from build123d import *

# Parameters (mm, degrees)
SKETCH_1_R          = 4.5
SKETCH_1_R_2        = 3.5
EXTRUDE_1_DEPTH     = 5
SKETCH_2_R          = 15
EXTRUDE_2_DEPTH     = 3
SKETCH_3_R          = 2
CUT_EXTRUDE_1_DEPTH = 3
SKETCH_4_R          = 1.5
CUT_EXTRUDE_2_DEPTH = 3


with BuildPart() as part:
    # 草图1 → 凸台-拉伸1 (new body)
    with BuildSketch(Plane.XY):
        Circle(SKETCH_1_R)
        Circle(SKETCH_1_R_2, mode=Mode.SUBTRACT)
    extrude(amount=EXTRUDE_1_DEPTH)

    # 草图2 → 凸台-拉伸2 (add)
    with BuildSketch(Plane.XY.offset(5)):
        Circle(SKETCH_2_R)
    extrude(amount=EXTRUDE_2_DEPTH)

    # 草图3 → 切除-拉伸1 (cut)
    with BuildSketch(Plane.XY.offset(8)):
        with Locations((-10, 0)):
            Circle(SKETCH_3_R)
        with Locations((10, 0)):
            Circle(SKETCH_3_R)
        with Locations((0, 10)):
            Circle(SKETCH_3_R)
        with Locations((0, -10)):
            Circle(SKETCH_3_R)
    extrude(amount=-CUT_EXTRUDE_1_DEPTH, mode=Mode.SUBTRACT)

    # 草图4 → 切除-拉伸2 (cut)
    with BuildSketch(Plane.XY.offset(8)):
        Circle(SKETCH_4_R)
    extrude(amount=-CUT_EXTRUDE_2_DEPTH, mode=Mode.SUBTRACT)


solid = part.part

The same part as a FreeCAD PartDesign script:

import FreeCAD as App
import Part
import Sketcher
Q = App.Units.Quantity

doc = App.newDocument("Part")
params = doc.addObject("Spreadsheet::Sheet", "Params")
for row, (alias, value) in enumerate([
    ("sketch1_diameter", "9 mm"),
    ("sketch1_diameter2", "7 mm"),
    ("pad1_length", "5 mm"),
    ("sketch2_diameter", "30 mm"),
    ("pad2_length", "3 mm"),
    ("sketch3_diameter", "4 mm"),
    ("pocket1_length", "3 mm"),
    ("sketch4_diameter", "3 mm"),
    ("pocket2_length", "3 mm"),
], start=1):
    params.set(f"A{row}", alias)
    params.set(f"B{row}", "=" + value)
    params.setAlias(f"B{row}", alias)

body = doc.addObject("PartDesign::Body", "Body")

# Sketch on XY plane
sketch1 = doc.addObject("Sketcher::SketchObject", "Sketch")
body.addObject(sketch1)
sketch1.AttachmentSupport = (doc.XY_Plane, [""])
sketch1.MapMode = "FlatFace"
sketch1.addGeometry(Part.Circle(App.Vector(0, 0, 0), App.Vector(0, 0, 1), 4.5), False)
sketch1.addGeometry(Part.Circle(App.Vector(0, 0, 0), App.Vector(0, 0, 1), 3.5), False)
sketch1.addConstraint(Sketcher.Constraint("Coincident", 0, 3, -1, 1))
sketch1.addConstraint(Sketcher.Constraint("Coincident", 1, 3, -1, 1))
sketch1.addConstraint(Sketcher.Constraint("Diameter", 0, Q("9 mm")))
sketch1.addConstraint(Sketcher.Constraint("Diameter", 1, Q("7 mm")))
sketch1.setExpression("Constraints[2]", "Params.sketch1_diameter")
sketch1.setExpression("Constraints[3]", "Params.sketch1_diameter2")
pad1 = doc.addObject("PartDesign::Pad", "Pad")
body.addObject(pad1)
pad1.Profile = sketch1
pad1.setExpression("Length", "Params.pad1_length")

# Sketch on XY plane
sketch2 = doc.addObject("Sketcher::SketchObject", "Sketch001")
body.addObject(sketch2)
sketch2.AttachmentSupport = (doc.XY_Plane, [""])
sketch2.MapMode = "FlatFace"
sketch2.AttachmentOffset = App.Placement(App.Vector(0, 0, 5), App.Rotation())
sketch2.addGeometry(Part.Circle(App.Vector(0, 0, 0), App.Vector(0, 0, 1), 15), False)
sketch2.addConstraint(Sketcher.Constraint("Coincident", 0, 3, -1, 1))
sketch2.addConstraint(Sketcher.Constraint("Diameter", 0, Q("30 mm")))
sketch2.setExpression("Constraints[1]", "Params.sketch2_diameter")
pad2 = doc.addObject("PartDesign::Pad", "Pad001")
body.addObject(pad2)
pad2.Profile = sketch2
pad2.setExpression("Length", "Params.pad2_length")

# Sketch on XY plane
sketch3 = doc.addObject("Sketcher::SketchObject", "Sketch002")
body.addObject(sketch3)
sketch3.AttachmentSupport = (doc.XY_Plane, [""])
sketch3.MapMode = "FlatFace"
sketch3.AttachmentOffset = App.Placement(App.Vector(0, 0, 8), App.Rotation())
sketch3.addGeometry(Part.Circle(App.Vector(-10, 0, 0), App.Vector(0, 0, 1), 2), False)
sketch3.addGeometry(Part.Circle(App.Vector(10, 0, 0), App.Vector(0, 0, 1), 2), False)
sketch3.addGeometry(Part.Circle(App.Vector(0, 10, 0), App.Vector(0, 0, 1), 2), False)
sketch3.addGeometry(Part.Circle(App.Vector(0, -10, 0), App.Vector(0, 0, 1), 2), False)
sketch3.addConstraint(Sketcher.Constraint("Equal", 0, 1))
sketch3.addConstraint(Sketcher.Constraint("Equal", 1, 2))
sketch3.addConstraint(Sketcher.Constraint("Equal", 2, 3))
sketch3.addConstraint(Sketcher.Constraint("Symmetric", 0, 3, 1, 3, -1, 1))
sketch3.addConstraint(Sketcher.Constraint("Symmetric", 2, 3, 3, 3, -1, 1))
sketch3.addConstraint(Sketcher.Constraint("PointOnObject", 0, 3, -1))
sketch3.addConstraint(Sketcher.Constraint("PointOnObject", 2, 3, -2))
sketch3.addConstraint(Sketcher.Constraint("Diameter", 0, Q("4 mm")))
sketch3.addConstraint(Sketcher.Constraint("DistanceX", 0, 3, -1, 1, Q("10 mm")))
sketch3.addConstraint(Sketcher.Constraint("DistanceY", -1, 1, 2, 3, Q("10 mm")))
sketch3.setExpression("Constraints[7]", "Params.sketch3_diameter")
pocket1 = doc.addObject("PartDesign::Pocket", "Pocket")
body.addObject(pocket1)
pocket1.Profile = sketch3
pocket1.setExpression("Length", "Params.pocket1_length")

# Sketch on XY plane
sketch4 = doc.addObject("Sketcher::SketchObject", "Sketch003")
body.addObject(sketch4)
sketch4.AttachmentSupport = (doc.XY_Plane, [""])
sketch4.MapMode = "FlatFace"
sketch4.AttachmentOffset = App.Placement(App.Vector(0, 0, 8), App.Rotation())
sketch4.addGeometry(Part.Circle(App.Vector(0, 0, 0), App.Vector(0, 0, 1), 1.5), False)
sketch4.addConstraint(Sketcher.Constraint("Coincident", 0, 3, -1, 1))
sketch4.addConstraint(Sketcher.Constraint("Diameter", 0, Q("3 mm")))
sketch4.setExpression("Constraints[1]", "Params.sketch4_diameter")
pocket2 = doc.addObject("PartDesign::Pocket", "Pocket001")
body.addObject(pocket2)
pocket2.Profile = sketch4
pocket2.setExpression("Length", "Params.pocket2_length")

doc.recompute()
